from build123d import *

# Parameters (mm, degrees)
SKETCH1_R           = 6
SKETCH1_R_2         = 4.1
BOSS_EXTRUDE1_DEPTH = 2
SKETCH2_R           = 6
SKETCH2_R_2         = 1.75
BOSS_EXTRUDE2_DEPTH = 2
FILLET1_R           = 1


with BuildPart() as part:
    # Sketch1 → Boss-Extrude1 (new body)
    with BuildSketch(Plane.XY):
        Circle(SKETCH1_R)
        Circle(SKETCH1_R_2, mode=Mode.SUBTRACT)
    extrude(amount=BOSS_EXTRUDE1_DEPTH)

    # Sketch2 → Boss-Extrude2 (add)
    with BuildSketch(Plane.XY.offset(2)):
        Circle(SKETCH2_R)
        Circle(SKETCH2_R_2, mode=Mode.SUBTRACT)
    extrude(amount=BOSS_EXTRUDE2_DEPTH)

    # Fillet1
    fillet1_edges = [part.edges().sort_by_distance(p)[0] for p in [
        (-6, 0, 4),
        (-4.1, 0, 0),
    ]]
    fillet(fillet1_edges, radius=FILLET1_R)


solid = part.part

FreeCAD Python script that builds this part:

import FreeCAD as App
import Part
import Sketcher
from FreeCAD import Vector


def edges_at(feature, points):
    """Names of the edges that pass closest to the given points."""
    edges = feature.Shape.Edges
    near = lambda p: min(range(len(edges)), key=lambda i: edges[i].distToShape(Part.Vertex(*p))[0])
    return sorted({f"Edge{near(p) + 1}" for p in points})

doc = App.newDocument("Part")
params = doc.addObject("Spreadsheet::Sheet", "Params")
for row, (alias, value) in enumerate([
    ("sketch1_diameter", "12 mm"),
    ("sketch1_diameter2", "8.2 mm"),
    ("pad1_length", "2 mm"),
    ("sketch2_diameter", "12 mm"),
    ("sketch2_diameter2", "3.5 mm"),
    ("pad2_length", "2 mm"),
    ("fillet_radius", "1 mm"),
], start=1):
    params.set(f"A{row}", alias)
    params.set(f"B{row}", "=" + value)
    params.setAlias(f"B{row}", alias)

body = doc.addObject("PartDesign::Body", "Body")

# Sketch on XY plane
sketch1 = body.newObject("Sketcher::SketchObject", "Sketch")
sketch1.AttachmentSupport = (doc.getObject("XY_Plane"), [""])
sketch1.MapMode = "FlatFace"
sketch1.addGeometry([
    Part.Circle(Vector(0, 0, 0), Vector(0, 0, 1), 6),
    Part.Circle(Vector(0, 0, 0), Vector(0, 0, 1), 4.1),
], False)
sketch1.addConstraint([
    Sketcher.Constraint("Coincident", 0, 3, -1, 1),
    Sketcher.Constraint("Coincident", 1, 3, -1, 1),
    Sketcher.Constraint("Diameter", 0, 12.0),
    Sketcher.Constraint("Diameter", 1, 8.2),
])
sketch1.setExpression("Constraints[2]", "Params.sketch1_diameter")
sketch1.setExpression("Constraints[3]", "Params.sketch1_diameter2")
pad1 = body.newObject("PartDesign::Pad", "Pad")
pad1.Profile = sketch1
pad1.setExpression("Length", "Params.pad1_length")

# Sketch on XY plane
sketch2 = body.newObject("Sketcher::SketchObject", "Sketch001")
sketch2.AttachmentSupport = (doc.getObject("XY_Plane"), [""])
sketch2.MapMode = "FlatFace"
sketch2.AttachmentOffset = App.Placement(Vector(0, 0, 2), App.Rotation())
sketch2.addGeometry([
    Part.Circle(Vector(0, 0, 0), Vector(0, 0, 1), 6),
    Part.Circle(Vector(0, 0, 0), Vector(0, 0, 1), 1.75),
], False)
sketch2.addConstraint([
    Sketcher.Constraint("Coincident", 0, 3, -1, 1),
    Sketcher.Constraint("Coincident", 1, 3, -1, 1),
    Sketcher.Constraint("Diameter", 0, 12.0),
    Sketcher.Constraint("Diameter", 1, 3.5),
])
sketch2.setExpression("Constraints[2]", "Params.sketch2_diameter")
sketch2.setExpression("Constraints[3]", "Params.sketch2_diameter2")
pad2 = body.newObject("PartDesign::Pad", "Pad001")
pad2.Profile = sketch2
pad2.setExpression("Length", "Params.pad2_length")
doc.recompute()

fillet = body.newObject("PartDesign::Fillet", "Fillet")
fillet.Base = (pad2, edges_at(pad2, [(-6, 0, 4), (-4.1, 0, 0)]))
fillet.setExpression("Radius", "Params.fillet_radius")

doc.recompute()
